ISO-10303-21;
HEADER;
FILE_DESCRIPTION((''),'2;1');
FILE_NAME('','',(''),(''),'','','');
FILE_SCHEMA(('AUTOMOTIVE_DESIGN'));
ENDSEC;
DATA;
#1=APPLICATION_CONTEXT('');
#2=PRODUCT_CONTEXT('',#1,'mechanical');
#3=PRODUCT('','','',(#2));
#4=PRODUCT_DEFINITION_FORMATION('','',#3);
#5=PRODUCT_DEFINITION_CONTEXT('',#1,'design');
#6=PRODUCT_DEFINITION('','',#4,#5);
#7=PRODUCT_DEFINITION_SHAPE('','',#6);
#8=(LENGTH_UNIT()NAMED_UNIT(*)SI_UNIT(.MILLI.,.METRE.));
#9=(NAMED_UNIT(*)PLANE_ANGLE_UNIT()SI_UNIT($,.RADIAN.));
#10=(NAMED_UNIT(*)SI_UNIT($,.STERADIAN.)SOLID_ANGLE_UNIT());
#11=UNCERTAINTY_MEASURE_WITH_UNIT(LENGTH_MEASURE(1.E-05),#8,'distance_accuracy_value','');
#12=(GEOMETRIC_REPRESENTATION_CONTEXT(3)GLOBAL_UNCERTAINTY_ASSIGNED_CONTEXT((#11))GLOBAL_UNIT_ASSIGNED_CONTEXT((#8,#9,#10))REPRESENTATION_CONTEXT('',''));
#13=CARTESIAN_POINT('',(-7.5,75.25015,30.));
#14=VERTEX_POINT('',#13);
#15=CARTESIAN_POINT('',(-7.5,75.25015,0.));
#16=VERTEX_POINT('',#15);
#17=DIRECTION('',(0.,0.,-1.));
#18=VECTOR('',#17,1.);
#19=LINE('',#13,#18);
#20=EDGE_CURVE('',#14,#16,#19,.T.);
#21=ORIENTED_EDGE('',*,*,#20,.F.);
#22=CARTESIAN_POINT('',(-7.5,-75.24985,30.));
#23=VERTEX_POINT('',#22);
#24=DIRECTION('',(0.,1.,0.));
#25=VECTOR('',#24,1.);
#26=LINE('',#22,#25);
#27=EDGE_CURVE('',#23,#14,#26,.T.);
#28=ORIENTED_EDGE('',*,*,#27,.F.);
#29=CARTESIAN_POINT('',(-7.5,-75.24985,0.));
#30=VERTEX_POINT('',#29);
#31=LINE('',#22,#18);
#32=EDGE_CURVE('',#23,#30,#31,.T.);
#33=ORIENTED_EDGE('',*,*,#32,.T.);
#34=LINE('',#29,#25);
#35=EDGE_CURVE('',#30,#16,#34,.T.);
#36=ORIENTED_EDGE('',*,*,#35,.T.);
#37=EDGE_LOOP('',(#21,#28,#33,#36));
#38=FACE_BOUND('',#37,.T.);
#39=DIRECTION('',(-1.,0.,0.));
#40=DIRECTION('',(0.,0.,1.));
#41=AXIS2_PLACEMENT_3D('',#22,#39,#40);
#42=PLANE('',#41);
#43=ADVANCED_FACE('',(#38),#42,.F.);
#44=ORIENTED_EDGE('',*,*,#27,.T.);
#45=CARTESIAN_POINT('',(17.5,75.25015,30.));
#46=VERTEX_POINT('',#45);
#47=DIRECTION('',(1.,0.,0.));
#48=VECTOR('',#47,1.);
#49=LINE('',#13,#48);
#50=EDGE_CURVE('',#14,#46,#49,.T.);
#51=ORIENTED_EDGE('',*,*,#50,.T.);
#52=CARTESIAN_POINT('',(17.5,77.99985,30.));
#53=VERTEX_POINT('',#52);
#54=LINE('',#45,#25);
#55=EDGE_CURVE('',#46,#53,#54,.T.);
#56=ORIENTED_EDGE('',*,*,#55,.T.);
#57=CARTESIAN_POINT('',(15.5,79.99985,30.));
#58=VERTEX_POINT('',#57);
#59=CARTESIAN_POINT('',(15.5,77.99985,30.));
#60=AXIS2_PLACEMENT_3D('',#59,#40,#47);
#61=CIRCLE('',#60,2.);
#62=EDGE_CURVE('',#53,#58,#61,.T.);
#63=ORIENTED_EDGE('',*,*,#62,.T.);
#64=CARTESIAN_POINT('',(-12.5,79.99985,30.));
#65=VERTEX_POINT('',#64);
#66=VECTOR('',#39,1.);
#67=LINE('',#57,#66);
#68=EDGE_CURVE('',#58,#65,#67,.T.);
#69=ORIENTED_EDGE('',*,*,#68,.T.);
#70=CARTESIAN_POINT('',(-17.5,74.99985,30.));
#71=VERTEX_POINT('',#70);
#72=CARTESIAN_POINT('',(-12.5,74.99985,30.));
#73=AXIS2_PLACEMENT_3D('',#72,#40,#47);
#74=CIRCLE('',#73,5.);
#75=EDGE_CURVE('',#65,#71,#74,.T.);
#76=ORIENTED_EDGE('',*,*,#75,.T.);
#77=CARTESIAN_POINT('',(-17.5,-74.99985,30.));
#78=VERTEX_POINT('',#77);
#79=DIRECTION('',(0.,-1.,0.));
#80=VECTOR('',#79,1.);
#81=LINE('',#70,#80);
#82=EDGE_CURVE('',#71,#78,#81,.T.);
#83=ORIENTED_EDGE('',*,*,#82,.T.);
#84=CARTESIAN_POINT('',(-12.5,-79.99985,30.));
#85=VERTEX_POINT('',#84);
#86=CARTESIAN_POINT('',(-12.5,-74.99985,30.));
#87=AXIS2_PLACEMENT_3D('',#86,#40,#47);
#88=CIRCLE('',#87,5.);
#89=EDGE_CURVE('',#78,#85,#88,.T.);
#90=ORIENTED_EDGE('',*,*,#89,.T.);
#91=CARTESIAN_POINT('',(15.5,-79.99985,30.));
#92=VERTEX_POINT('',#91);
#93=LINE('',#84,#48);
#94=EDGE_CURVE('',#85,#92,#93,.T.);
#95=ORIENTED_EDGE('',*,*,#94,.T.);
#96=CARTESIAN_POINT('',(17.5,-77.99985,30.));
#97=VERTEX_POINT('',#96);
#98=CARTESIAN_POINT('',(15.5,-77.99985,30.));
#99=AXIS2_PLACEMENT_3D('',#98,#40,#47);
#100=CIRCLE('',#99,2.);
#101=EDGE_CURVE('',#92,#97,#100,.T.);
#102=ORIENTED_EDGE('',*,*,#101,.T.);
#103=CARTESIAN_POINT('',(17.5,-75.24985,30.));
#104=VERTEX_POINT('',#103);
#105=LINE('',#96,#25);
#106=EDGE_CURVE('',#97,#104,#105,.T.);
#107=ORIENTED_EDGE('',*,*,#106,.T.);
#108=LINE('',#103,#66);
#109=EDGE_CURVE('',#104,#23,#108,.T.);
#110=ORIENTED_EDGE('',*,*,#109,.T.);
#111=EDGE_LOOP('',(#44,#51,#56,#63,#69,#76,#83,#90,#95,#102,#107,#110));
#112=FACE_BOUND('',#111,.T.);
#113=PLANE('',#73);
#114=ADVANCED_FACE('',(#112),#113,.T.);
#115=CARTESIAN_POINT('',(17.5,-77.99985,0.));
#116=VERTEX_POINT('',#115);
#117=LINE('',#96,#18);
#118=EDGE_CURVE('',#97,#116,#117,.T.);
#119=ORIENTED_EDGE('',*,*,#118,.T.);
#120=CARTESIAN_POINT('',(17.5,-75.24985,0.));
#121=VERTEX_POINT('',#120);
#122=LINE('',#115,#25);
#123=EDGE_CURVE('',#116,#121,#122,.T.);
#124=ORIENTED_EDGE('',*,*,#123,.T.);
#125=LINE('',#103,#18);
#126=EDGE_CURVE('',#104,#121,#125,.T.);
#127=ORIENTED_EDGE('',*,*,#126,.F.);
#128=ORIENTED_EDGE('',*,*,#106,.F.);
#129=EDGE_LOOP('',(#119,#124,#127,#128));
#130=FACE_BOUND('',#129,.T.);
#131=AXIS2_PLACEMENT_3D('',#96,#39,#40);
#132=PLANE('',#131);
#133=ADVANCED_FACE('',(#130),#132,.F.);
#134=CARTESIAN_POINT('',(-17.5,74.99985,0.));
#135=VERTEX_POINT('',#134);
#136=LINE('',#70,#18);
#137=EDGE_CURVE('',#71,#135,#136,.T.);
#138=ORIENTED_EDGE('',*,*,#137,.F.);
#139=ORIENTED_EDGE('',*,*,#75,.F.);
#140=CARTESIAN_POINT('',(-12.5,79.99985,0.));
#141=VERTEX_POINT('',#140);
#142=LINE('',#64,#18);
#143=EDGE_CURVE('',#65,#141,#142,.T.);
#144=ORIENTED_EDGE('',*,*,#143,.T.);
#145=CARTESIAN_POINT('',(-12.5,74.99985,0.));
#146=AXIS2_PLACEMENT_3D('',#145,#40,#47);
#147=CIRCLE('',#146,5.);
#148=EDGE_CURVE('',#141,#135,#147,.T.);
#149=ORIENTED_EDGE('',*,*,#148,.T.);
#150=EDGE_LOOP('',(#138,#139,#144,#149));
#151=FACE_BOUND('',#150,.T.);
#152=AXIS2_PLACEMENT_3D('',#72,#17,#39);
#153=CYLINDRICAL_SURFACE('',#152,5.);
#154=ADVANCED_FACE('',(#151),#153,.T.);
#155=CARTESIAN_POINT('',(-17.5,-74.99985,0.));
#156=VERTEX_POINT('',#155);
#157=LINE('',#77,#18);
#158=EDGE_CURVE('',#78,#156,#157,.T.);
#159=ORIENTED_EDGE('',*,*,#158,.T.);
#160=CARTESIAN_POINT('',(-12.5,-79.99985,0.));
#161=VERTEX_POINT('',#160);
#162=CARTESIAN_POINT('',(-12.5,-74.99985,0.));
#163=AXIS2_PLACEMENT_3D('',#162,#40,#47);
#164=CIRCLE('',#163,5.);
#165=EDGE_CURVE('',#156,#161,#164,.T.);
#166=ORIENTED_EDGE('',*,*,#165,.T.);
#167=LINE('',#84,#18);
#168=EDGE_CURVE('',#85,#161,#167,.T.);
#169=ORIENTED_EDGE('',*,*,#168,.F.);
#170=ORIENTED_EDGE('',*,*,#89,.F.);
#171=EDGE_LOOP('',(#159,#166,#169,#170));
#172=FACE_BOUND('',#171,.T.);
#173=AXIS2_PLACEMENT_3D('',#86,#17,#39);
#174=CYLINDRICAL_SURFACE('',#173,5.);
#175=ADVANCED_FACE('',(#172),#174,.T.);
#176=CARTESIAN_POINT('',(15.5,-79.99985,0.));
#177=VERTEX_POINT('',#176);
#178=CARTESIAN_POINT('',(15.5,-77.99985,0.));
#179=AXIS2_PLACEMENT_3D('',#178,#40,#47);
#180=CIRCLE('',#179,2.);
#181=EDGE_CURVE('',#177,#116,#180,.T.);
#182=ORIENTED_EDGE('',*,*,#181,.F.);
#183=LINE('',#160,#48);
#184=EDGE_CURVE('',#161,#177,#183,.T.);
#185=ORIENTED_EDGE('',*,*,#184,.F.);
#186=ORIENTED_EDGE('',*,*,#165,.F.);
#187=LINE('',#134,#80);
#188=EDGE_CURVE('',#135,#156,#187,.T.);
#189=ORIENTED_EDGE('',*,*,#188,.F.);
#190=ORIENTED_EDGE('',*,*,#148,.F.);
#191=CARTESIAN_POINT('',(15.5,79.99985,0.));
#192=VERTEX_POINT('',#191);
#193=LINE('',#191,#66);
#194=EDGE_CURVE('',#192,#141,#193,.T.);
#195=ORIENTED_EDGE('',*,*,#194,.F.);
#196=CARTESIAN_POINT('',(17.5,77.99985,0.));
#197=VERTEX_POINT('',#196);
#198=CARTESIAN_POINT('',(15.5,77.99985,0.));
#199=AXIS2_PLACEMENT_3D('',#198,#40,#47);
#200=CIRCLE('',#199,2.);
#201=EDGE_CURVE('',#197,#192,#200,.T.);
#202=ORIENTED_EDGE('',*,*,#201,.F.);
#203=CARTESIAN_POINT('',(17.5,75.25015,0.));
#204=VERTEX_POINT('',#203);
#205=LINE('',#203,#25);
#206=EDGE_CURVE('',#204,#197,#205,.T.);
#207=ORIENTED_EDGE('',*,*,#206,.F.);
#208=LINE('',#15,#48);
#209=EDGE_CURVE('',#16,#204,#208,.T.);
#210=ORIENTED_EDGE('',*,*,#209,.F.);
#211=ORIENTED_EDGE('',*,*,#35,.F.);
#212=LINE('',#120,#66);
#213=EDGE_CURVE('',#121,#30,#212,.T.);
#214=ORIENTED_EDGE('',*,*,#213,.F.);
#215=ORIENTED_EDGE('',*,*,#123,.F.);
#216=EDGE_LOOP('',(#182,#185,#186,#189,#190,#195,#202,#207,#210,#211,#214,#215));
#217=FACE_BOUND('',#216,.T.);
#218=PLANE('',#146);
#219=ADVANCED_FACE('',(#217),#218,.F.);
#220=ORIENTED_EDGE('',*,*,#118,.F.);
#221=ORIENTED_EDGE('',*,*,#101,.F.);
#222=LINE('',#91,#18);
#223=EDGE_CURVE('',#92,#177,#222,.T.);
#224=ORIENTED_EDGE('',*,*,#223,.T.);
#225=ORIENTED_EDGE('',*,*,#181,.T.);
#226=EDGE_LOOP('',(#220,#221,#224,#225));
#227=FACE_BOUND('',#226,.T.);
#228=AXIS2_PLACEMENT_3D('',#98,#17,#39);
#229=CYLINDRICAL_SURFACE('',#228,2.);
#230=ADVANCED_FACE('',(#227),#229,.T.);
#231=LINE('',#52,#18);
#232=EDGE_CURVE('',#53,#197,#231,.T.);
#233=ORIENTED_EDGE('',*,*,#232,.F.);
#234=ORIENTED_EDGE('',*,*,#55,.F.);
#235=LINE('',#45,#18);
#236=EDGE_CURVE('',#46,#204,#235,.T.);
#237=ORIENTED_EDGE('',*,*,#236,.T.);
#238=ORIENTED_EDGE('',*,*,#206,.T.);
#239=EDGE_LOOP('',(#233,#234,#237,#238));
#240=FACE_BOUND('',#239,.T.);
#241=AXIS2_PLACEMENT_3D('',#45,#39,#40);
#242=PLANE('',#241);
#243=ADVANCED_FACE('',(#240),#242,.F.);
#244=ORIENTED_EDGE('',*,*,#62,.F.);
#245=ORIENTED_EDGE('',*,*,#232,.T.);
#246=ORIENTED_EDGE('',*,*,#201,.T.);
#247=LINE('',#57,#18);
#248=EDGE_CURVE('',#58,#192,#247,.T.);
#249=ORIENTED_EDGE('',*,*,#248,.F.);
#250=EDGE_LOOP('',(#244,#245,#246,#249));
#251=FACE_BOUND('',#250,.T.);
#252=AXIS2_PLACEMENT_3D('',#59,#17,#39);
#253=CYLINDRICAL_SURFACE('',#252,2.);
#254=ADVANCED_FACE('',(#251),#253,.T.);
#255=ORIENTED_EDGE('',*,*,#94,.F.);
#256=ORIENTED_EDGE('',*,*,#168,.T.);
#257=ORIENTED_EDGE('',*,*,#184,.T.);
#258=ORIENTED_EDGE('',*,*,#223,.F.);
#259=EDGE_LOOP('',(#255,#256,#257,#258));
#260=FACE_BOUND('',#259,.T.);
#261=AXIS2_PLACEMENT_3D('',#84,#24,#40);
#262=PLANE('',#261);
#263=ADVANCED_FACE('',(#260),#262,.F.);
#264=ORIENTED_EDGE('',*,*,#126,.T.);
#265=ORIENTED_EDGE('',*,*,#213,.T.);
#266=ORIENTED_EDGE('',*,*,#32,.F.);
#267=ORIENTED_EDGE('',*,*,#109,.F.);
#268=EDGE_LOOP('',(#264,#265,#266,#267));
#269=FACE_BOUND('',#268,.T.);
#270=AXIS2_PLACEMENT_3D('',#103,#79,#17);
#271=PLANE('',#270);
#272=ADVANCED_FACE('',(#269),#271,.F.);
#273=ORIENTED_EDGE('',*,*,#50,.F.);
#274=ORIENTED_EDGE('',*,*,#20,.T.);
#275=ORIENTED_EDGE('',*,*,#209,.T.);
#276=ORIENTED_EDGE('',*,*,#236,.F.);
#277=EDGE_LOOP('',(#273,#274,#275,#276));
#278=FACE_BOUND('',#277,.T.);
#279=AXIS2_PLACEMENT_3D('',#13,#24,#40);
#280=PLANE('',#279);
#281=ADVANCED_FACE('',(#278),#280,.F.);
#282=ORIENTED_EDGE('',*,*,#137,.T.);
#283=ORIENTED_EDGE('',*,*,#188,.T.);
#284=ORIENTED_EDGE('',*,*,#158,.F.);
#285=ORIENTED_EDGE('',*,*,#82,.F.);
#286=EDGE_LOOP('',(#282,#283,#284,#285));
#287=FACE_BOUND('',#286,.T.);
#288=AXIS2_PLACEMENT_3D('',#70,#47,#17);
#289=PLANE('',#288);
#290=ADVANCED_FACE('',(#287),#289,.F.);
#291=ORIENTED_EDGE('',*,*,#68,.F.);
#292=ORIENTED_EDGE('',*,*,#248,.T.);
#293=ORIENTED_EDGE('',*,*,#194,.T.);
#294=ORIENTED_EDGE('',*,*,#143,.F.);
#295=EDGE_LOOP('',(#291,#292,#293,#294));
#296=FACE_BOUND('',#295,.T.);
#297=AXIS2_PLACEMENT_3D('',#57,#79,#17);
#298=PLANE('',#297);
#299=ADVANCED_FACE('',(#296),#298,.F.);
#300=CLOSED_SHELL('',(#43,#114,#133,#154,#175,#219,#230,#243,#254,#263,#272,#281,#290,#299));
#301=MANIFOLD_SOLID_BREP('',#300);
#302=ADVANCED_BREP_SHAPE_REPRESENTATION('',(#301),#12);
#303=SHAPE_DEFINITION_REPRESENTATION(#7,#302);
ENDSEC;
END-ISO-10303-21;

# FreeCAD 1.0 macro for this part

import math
import FreeCAD as App
import Part
import Sketcher
Q = App.Units.Quantity

doc = App.newDocument("Part")
body = doc.addObject("PartDesign::Body", "Body")

sketch1 = body.newObject("Sketcher::SketchObject", "Sketch")
sketch1.AttachmentSupport = (doc.getObject("XY_Plane"), [""])
sketch1.MapMode = "FlatFace"
sketch1.addGeometry([
    Part.LineSegment(App.Vector(-17.5, 75, 0), App.Vector(-17.5, -75, 0)),
    Part.ArcOfCircle(Part.Circle(App.Vector(-12.5, -75, 0), App.Vector(0, 0, 1), 5), math.radians(180), math.radians(270)),
    Part.LineSegment(App.Vector(-12.5, -80, 0), App.Vector(15.5, -80, 0)),
    Part.ArcOfCircle(Part.Circle(App.Vector(15.5, -78, 0), App.Vector(0, 0, 1), 2), math.radians(-90), math.radians(0)),
    Part.LineSegment(App.Vector(17.5, -78, 0), App.Vector(17.5, -75.2, 0)),
    Part.LineSegment(App.Vector(17.5, -75.2, 0), App.Vector(-7.5, -75.2, 0)),
    Part.LineSegment(App.Vector(-7.5, -75.2, 0), App.Vector(-7.5, 75.3, 0)),
    Part.LineSegment(App.Vector(-7.5, 75.3, 0), App.Vector(17.5, 75.3, 0)),
    Part.LineSegment(App.Vector(17.5, 75.3, 0), App.Vector(17.5, 78, 0)),
    Part.ArcOfCircle(Part.Circle(App.Vector(15.5, 78, 0), App.Vector(0, 0, 1), 2), math.radians(0), math.radians(90)),
    Part.LineSegment(App.Vector(15.5, 80, 0), App.Vector(-12.5, 80, 0)),
    Part.ArcOfCircle(Part.Circle(App.Vector(-12.5, 75, 0), App.Vector(0, 0, 1), 5), math.radians(90), math.radians(180)),
], False)
sketch1.addConstraint([
    Sketcher.Constraint("Tangent", 0, 2, 1, 1),
    Sketcher.Constraint("Tangent", 1, 2, 2, 1),
    Sketcher.Constraint("Tangent", 2, 2, 3, 1),
    Sketcher.Constraint("Tangent", 3, 2, 4, 1),
    Sketcher.Constraint("Coincident", 4, 2, 5, 1),
    Sketcher.Constraint("Coincident", 5, 2, 6, 1),
    Sketcher.Constraint("Coincident", 6, 2, 7, 1),
    Sketcher.Constraint("Coincident", 7, 2, 8, 1),
    Sketcher.Constraint("Tangent", 8, 2, 9, 1),
    Sketcher.Constraint("Tangent", 9, 2, 10, 1),
    Sketcher.Constraint("Tangent", 10, 2, 11, 1),
    Sketcher.Constraint("Tangent", 11, 2, 0, 1),
    Sketcher.Constraint("Vertical", 0),
    Sketcher.Constraint("Horizontal", 2),
    Sketcher.Constraint("Vertical", 4),
    Sketcher.Constraint("Horizontal", 5),
    Sketcher.Constraint("Vertical", 6),
    Sketcher.Constraint("Horizontal", 7),
    Sketcher.Constraint("Vertical", 8),
    Sketcher.Constraint("Horizontal", 10),
    Sketcher.Constraint("Equal", 3, 9),
    Sketcher.Constraint("Equal", 1, 11),
    Sketcher.Constraint("Symmetric", 3, 3, 9, 3, -1),
    Sketcher.Constraint("Radius", 1, Q("5 mm")),
    Sketcher.Constraint("Radius", 3, Q("2 mm")),
    Sketcher.Constraint("DistanceX", 2, 1, 2, 2, Q("28 mm")),
    Sketcher.Constraint("DistanceX", 5, 2, 5, 1, Q("25 mm")),
    Sketcher.Constraint("DistanceY", 6, 1, 6, 2, Q("150.5 mm")),
    Sketcher.Constraint("DistanceY", 4, 1, 4, 2, Q("2.75 mm")),
    Sketcher.Constraint("DistanceX", 1, 3, -1, 1, Q("12.5 mm")),
    Sketcher.Constraint("DistanceY", 0, 2, 0, 1, Q("149.999701 mm")),
])
pad1 = body.newObject("PartDesign::Pad", "Pad")
pad1.Profile = sketch1
pad1.Length = 30

doc.recompute()
